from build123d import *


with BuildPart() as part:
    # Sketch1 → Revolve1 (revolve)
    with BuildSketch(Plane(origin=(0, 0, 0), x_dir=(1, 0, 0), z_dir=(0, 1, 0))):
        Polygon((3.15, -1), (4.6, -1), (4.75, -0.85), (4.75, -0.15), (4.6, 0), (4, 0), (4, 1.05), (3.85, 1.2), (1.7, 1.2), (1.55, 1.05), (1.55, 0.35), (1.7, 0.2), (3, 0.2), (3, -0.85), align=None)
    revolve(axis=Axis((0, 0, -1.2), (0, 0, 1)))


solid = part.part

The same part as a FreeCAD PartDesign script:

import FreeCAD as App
import Part
import Sketcher

V = App.Vector


def add_polygon(sketch, points):
    """Adds a closed chain of lines whose ends are joined by coincident constraints."""
    first, n = sketch.GeometryCount, len(points)
    for a, b in zip(points, points[1:] + points[:1]):
        sketch.addGeometry(Part.LineSegment(App.Vector(*a, 0), App.Vector(*b, 0)), False)
    for i in range(n):
        sketch.addConstraint(Sketcher.Constraint("Coincident", first + i, 2, first + (i + 1) % n, 1))

doc = App.newDocument("Part")
body = doc.addObject("PartDesign::Body", "Body")

sketch1 = body.newObject("Sketcher::SketchObject", "Sketch")
sketch1.AttachmentSupport = (doc.getObject("XZ_Plane"), [""])
sketch1.MapMode = "FlatFace"
add_polygon(sketch1, [(3.15, 1), (4.6, 1), (4.75, 0.85), (4.75, 0.15), (4.6, 0), (4, 0), (4, -1.05), (3.85, -1.2), (1.7, -1.2), (1.55, -1.05), (1.55, -0.35), (1.7, -0.2), (3, -0.2), (3, 0.85)])
sketch1.addConstraint([
    Sketcher.Constraint("Horizontal", 0),
    Sketcher.Constraint("Vertical", 2),
    Sketcher.Constraint("Horizontal", 4),
    Sketcher.Constraint("Vertical", 5),
    Sketcher.Constraint("Horizontal", 7),
    Sketcher.Constraint("Vertical", 9),
    Sketcher.Constraint("Horizontal", 11),
    Sketcher.Constraint("Vertical", 12),
    Sketcher.Constraint("PointOnObject", 3, 2, -1),
    Sketcher.Constraint("Perpendicular", 1, 3),
    Sketcher.Constraint("Parallel", 3, 6),
    Sketcher.Constraint("Perpendicular", 6, 8),
    Sketcher.Constraint("Perpendicular", 8, 10),
    Sketcher.Constraint("Parallel", 10, 13),
    Sketcher.Constraint("Horizontal", 5, 2, 8, 2),
    Sketcher.Constraint("Horizontal", 1, 2, 12, 2),
    Sketcher.Constraint("Vertical", 0, 2, 3, 2),
    Sketcher.Constraint("Vertical", 7, 2, 10, 2),
    Sketcher.Constraint("Equal", 2, 9),
    Sketcher.Constraint("Equal", 5, 12),
    Sketcher.Constraint("Equal", 1, 3),
    Sketcher.Constraint("DistanceX", 4, 2, 4, 1, 0.6),
    Sketcher.Constraint("DistanceX", 11, 1, 11, 2, 1.3),
    Sketcher.Constraint("DistanceY", 2, 2, 2, 1, 0.7),
    Sketcher.Constraint("DistanceY", -1, 1, 0, 2, 1.0),
    Sketcher.Constraint("DistanceX", -1, 1, 4, 2, 4.0),
    Sketcher.Constraint("DistanceX", -1, 1, 11, 2, 3.0),
    Sketcher.Constraint("DistanceY", 5, 2, 5, 1, 1.05),
])
revolution = body.newObject("PartDesign::Revolution", "Revolution")
revolution.Profile = sketch1
revolution.ReferenceAxis = (sketch1, ["V_Axis"])
revolution.Angle = 360

doc.recompute()
